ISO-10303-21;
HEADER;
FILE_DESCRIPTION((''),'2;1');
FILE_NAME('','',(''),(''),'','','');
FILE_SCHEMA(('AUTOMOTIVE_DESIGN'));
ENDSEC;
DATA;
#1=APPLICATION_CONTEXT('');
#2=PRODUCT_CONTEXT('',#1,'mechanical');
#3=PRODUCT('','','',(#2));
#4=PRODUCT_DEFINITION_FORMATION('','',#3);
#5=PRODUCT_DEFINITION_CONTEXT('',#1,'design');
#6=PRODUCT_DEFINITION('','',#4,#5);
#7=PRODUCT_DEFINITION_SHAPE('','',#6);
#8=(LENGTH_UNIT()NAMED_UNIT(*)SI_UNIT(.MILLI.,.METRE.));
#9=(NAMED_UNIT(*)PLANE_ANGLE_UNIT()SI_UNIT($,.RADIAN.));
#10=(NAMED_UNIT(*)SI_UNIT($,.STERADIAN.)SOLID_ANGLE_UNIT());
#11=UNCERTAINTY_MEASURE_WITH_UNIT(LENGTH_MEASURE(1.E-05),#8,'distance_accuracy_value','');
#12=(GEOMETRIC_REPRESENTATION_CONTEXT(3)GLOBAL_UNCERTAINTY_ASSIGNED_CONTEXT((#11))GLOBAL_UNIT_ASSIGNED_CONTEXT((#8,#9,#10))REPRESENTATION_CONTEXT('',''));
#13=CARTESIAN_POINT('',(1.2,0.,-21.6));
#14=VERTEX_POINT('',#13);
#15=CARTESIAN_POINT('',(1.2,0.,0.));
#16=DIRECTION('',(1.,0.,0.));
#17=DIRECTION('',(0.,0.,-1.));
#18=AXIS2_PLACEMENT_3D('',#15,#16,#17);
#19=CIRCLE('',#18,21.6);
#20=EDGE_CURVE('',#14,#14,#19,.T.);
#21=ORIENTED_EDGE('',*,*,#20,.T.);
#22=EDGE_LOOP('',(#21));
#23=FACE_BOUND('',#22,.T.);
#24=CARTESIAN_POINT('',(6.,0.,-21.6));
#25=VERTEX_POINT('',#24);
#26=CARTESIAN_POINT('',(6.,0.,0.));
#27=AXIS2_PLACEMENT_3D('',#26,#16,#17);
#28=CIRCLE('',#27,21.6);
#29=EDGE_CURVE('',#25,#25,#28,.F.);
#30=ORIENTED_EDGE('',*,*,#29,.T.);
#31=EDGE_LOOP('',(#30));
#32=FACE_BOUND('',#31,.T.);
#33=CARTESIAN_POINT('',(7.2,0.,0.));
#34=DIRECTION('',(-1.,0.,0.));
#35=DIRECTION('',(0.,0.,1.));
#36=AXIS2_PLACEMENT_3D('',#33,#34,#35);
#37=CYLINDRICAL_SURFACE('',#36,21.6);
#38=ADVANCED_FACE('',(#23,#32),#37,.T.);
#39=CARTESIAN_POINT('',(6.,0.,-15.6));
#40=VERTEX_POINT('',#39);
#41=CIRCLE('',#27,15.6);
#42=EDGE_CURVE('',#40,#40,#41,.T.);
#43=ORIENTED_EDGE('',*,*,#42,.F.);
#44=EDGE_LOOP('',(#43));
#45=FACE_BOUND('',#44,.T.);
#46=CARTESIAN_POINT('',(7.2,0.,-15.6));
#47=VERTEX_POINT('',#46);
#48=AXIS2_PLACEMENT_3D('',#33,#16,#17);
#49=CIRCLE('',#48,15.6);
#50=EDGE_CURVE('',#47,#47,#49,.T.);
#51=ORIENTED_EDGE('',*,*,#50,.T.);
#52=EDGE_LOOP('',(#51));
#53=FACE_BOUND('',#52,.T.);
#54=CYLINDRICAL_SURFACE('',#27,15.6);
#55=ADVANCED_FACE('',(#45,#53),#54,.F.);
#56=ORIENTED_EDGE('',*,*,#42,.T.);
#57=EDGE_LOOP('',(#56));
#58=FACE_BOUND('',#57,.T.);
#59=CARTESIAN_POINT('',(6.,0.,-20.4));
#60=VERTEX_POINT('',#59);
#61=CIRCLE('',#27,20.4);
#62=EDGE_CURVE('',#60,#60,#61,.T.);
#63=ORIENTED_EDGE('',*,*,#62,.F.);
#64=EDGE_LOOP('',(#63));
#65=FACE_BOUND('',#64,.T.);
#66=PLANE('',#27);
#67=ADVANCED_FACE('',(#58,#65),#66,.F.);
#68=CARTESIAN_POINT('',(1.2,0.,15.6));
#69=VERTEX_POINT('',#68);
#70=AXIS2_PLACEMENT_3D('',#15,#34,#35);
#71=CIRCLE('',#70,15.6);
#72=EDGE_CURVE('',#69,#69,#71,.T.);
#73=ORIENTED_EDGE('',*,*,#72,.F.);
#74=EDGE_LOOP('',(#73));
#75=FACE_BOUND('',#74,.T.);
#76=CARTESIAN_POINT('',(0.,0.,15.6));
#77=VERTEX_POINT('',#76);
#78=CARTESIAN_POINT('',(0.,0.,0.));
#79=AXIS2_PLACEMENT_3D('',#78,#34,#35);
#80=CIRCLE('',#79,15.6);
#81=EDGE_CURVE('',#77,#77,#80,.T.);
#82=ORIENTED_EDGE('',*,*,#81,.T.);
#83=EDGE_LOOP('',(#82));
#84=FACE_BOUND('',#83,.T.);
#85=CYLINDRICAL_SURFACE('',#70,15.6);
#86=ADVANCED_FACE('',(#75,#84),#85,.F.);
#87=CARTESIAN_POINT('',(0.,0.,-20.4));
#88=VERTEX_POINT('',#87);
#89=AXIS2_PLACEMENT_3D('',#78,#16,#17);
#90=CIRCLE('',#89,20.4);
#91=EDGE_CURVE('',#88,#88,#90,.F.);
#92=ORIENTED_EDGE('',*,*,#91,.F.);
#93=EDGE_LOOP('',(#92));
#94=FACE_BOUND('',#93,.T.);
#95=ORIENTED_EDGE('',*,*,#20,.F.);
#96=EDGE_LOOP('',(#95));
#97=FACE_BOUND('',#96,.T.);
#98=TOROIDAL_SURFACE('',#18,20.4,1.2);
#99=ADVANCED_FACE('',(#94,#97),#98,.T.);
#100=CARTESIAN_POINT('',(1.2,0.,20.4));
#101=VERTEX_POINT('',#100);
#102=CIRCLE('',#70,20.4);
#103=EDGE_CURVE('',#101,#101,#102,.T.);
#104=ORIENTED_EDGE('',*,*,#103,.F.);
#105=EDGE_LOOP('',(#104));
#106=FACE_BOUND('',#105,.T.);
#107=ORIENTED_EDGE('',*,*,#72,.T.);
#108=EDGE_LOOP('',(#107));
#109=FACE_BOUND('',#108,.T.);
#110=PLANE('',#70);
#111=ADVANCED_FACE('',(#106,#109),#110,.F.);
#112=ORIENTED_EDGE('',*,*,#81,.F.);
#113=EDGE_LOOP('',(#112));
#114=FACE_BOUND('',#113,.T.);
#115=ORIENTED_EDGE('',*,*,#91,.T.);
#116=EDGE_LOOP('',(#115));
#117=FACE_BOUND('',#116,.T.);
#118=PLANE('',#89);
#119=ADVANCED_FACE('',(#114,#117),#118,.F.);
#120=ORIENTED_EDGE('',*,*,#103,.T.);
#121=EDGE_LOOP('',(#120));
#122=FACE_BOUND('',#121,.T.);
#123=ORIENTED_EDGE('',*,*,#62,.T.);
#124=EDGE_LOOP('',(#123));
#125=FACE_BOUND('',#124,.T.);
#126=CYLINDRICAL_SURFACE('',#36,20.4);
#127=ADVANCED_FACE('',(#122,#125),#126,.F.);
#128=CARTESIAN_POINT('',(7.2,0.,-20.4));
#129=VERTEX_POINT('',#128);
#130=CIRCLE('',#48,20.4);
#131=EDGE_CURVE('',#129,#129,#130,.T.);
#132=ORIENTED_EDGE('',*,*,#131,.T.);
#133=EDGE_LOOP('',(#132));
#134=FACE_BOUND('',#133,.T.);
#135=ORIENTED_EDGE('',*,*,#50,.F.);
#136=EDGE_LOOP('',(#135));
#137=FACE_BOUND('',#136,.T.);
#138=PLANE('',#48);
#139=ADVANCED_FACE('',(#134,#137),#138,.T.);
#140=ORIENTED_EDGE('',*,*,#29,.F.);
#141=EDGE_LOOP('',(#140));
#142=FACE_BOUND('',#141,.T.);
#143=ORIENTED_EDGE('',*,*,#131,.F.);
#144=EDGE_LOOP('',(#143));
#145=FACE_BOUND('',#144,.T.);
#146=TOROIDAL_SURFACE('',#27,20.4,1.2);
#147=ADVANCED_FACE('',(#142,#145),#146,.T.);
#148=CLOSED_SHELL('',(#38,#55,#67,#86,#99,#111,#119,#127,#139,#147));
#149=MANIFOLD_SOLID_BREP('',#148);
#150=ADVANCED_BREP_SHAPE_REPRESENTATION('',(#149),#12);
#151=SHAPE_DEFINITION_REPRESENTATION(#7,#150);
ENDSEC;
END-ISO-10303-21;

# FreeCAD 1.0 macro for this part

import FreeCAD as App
import Part
import Sketcher
from FreeCAD import Vector
Q = App.Units.Quantity


def edges_at(feature, points):
    """Names of the edges that pass closest to the given points."""
    edges = feature.Shape.Edges
    near = lambda p: min(range(len(edges)), key=lambda i: edges[i].distToShape(Part.Vertex(*p))[0])
    return sorted({f"Edge{near(p) + 1}" for p in points})

doc = App.newDocument("Part")
body = doc.addObject("PartDesign::Body", "Body")

sketch1 = body.newObject("Sketcher::SketchObject", "Sketch")
sketch1.AttachmentSupport = (doc.getObject("YZ_Plane"), [""])
sketch1.MapMode = "FlatFace"
sketch1.addGeometry([
    Part.Circle(Vector(0, 0, 0), Vector(0, 0, 1), 22),
    Part.Circle(Vector(0, 0, 0), Vector(0, 0, 1), 20),
], False)
sketch1.addConstraint([
    Sketcher.Constraint("Coincident", 0, 3, -1, 1),
    Sketcher.Constraint("Coincident", 1, 3, -1, 1),
    Sketcher.Constraint("Diameter", 0, Q("43.2 mm")),
    Sketcher.Constraint("Diameter", 1, Q("40.8 mm")),
])
pad1 = body.newObject("PartDesign::Pad", "Pad")
pad1.Profile = sketch1
pad1.Length = 7.2

sketch2 = body.newObject("Sketcher::SketchObject", "Sketch001")
sketch2.AttachmentSupport = (doc.getObject("YZ_Plane"), [""])
sketch2.MapMode = "FlatFace"
sketch2.AttachmentOffset = App.Placement(Vector(0, 0, 6), App.Rotation())
sketch2.addGeometry([
    Part.Circle(Vector(0, 0, 0), Vector(0, 0, 1), 20),
    Part.Circle(Vector(0, 0, 0), Vector(0, 0, 1), 16),
], False)
sketch2.addConstraint([
    Sketcher.Constraint("Coincident", 0, 3, -1, 1),
    Sketcher.Constraint("Coincident", 1, 3, -1, 1),
    Sketcher.Constraint("Diameter", 0, Q("40.8 mm")),
    Sketcher.Constraint("Diameter", 1, Q("31.2 mm")),
])
pad2 = body.newObject("PartDesign::Pad", "Pad001")
pad2.Profile = sketch2
pad2.Length = 1.2

sketch3 = body.newObject("Sketcher::SketchObject", "Sketch002")
sketch3.AttachmentSupport = (doc.getObject("YZ_Plane"), [""])
sketch3.MapMode = "FlatFace"
sketch3.addGeometry([
    Part.Circle(Vector(0, 0, 0), Vector(0, 0, 1), 20),
    Part.Circle(Vector(0, 0, 0), Vector(0, 0, 1), 16),
], False)
sketch3.addConstraint([
    Sketcher.Constraint("Coincident", 0, 3, -1, 1),
    Sketcher.Constraint("Coincident", 1, 3, -1, 1),
    Sketcher.Constraint("Diameter", 0, Q("40.8 mm")),
    Sketcher.Constraint("Diameter", 1, Q("31.2 mm")),
])
pad3 = body.newObject("PartDesign::Pad", "Pad002")
pad3.Profile = sketch3
pad3.Length = 1.2
doc.recompute()

fillet = body.newObject("PartDesign::Fillet", "Fillet")
fillet.Base = (pad3, edges_at(pad3, [(0, 0, 21.6), (7.2, 0, 21.6)]))
fillet.Radius = 1.2

doc.recompute()
